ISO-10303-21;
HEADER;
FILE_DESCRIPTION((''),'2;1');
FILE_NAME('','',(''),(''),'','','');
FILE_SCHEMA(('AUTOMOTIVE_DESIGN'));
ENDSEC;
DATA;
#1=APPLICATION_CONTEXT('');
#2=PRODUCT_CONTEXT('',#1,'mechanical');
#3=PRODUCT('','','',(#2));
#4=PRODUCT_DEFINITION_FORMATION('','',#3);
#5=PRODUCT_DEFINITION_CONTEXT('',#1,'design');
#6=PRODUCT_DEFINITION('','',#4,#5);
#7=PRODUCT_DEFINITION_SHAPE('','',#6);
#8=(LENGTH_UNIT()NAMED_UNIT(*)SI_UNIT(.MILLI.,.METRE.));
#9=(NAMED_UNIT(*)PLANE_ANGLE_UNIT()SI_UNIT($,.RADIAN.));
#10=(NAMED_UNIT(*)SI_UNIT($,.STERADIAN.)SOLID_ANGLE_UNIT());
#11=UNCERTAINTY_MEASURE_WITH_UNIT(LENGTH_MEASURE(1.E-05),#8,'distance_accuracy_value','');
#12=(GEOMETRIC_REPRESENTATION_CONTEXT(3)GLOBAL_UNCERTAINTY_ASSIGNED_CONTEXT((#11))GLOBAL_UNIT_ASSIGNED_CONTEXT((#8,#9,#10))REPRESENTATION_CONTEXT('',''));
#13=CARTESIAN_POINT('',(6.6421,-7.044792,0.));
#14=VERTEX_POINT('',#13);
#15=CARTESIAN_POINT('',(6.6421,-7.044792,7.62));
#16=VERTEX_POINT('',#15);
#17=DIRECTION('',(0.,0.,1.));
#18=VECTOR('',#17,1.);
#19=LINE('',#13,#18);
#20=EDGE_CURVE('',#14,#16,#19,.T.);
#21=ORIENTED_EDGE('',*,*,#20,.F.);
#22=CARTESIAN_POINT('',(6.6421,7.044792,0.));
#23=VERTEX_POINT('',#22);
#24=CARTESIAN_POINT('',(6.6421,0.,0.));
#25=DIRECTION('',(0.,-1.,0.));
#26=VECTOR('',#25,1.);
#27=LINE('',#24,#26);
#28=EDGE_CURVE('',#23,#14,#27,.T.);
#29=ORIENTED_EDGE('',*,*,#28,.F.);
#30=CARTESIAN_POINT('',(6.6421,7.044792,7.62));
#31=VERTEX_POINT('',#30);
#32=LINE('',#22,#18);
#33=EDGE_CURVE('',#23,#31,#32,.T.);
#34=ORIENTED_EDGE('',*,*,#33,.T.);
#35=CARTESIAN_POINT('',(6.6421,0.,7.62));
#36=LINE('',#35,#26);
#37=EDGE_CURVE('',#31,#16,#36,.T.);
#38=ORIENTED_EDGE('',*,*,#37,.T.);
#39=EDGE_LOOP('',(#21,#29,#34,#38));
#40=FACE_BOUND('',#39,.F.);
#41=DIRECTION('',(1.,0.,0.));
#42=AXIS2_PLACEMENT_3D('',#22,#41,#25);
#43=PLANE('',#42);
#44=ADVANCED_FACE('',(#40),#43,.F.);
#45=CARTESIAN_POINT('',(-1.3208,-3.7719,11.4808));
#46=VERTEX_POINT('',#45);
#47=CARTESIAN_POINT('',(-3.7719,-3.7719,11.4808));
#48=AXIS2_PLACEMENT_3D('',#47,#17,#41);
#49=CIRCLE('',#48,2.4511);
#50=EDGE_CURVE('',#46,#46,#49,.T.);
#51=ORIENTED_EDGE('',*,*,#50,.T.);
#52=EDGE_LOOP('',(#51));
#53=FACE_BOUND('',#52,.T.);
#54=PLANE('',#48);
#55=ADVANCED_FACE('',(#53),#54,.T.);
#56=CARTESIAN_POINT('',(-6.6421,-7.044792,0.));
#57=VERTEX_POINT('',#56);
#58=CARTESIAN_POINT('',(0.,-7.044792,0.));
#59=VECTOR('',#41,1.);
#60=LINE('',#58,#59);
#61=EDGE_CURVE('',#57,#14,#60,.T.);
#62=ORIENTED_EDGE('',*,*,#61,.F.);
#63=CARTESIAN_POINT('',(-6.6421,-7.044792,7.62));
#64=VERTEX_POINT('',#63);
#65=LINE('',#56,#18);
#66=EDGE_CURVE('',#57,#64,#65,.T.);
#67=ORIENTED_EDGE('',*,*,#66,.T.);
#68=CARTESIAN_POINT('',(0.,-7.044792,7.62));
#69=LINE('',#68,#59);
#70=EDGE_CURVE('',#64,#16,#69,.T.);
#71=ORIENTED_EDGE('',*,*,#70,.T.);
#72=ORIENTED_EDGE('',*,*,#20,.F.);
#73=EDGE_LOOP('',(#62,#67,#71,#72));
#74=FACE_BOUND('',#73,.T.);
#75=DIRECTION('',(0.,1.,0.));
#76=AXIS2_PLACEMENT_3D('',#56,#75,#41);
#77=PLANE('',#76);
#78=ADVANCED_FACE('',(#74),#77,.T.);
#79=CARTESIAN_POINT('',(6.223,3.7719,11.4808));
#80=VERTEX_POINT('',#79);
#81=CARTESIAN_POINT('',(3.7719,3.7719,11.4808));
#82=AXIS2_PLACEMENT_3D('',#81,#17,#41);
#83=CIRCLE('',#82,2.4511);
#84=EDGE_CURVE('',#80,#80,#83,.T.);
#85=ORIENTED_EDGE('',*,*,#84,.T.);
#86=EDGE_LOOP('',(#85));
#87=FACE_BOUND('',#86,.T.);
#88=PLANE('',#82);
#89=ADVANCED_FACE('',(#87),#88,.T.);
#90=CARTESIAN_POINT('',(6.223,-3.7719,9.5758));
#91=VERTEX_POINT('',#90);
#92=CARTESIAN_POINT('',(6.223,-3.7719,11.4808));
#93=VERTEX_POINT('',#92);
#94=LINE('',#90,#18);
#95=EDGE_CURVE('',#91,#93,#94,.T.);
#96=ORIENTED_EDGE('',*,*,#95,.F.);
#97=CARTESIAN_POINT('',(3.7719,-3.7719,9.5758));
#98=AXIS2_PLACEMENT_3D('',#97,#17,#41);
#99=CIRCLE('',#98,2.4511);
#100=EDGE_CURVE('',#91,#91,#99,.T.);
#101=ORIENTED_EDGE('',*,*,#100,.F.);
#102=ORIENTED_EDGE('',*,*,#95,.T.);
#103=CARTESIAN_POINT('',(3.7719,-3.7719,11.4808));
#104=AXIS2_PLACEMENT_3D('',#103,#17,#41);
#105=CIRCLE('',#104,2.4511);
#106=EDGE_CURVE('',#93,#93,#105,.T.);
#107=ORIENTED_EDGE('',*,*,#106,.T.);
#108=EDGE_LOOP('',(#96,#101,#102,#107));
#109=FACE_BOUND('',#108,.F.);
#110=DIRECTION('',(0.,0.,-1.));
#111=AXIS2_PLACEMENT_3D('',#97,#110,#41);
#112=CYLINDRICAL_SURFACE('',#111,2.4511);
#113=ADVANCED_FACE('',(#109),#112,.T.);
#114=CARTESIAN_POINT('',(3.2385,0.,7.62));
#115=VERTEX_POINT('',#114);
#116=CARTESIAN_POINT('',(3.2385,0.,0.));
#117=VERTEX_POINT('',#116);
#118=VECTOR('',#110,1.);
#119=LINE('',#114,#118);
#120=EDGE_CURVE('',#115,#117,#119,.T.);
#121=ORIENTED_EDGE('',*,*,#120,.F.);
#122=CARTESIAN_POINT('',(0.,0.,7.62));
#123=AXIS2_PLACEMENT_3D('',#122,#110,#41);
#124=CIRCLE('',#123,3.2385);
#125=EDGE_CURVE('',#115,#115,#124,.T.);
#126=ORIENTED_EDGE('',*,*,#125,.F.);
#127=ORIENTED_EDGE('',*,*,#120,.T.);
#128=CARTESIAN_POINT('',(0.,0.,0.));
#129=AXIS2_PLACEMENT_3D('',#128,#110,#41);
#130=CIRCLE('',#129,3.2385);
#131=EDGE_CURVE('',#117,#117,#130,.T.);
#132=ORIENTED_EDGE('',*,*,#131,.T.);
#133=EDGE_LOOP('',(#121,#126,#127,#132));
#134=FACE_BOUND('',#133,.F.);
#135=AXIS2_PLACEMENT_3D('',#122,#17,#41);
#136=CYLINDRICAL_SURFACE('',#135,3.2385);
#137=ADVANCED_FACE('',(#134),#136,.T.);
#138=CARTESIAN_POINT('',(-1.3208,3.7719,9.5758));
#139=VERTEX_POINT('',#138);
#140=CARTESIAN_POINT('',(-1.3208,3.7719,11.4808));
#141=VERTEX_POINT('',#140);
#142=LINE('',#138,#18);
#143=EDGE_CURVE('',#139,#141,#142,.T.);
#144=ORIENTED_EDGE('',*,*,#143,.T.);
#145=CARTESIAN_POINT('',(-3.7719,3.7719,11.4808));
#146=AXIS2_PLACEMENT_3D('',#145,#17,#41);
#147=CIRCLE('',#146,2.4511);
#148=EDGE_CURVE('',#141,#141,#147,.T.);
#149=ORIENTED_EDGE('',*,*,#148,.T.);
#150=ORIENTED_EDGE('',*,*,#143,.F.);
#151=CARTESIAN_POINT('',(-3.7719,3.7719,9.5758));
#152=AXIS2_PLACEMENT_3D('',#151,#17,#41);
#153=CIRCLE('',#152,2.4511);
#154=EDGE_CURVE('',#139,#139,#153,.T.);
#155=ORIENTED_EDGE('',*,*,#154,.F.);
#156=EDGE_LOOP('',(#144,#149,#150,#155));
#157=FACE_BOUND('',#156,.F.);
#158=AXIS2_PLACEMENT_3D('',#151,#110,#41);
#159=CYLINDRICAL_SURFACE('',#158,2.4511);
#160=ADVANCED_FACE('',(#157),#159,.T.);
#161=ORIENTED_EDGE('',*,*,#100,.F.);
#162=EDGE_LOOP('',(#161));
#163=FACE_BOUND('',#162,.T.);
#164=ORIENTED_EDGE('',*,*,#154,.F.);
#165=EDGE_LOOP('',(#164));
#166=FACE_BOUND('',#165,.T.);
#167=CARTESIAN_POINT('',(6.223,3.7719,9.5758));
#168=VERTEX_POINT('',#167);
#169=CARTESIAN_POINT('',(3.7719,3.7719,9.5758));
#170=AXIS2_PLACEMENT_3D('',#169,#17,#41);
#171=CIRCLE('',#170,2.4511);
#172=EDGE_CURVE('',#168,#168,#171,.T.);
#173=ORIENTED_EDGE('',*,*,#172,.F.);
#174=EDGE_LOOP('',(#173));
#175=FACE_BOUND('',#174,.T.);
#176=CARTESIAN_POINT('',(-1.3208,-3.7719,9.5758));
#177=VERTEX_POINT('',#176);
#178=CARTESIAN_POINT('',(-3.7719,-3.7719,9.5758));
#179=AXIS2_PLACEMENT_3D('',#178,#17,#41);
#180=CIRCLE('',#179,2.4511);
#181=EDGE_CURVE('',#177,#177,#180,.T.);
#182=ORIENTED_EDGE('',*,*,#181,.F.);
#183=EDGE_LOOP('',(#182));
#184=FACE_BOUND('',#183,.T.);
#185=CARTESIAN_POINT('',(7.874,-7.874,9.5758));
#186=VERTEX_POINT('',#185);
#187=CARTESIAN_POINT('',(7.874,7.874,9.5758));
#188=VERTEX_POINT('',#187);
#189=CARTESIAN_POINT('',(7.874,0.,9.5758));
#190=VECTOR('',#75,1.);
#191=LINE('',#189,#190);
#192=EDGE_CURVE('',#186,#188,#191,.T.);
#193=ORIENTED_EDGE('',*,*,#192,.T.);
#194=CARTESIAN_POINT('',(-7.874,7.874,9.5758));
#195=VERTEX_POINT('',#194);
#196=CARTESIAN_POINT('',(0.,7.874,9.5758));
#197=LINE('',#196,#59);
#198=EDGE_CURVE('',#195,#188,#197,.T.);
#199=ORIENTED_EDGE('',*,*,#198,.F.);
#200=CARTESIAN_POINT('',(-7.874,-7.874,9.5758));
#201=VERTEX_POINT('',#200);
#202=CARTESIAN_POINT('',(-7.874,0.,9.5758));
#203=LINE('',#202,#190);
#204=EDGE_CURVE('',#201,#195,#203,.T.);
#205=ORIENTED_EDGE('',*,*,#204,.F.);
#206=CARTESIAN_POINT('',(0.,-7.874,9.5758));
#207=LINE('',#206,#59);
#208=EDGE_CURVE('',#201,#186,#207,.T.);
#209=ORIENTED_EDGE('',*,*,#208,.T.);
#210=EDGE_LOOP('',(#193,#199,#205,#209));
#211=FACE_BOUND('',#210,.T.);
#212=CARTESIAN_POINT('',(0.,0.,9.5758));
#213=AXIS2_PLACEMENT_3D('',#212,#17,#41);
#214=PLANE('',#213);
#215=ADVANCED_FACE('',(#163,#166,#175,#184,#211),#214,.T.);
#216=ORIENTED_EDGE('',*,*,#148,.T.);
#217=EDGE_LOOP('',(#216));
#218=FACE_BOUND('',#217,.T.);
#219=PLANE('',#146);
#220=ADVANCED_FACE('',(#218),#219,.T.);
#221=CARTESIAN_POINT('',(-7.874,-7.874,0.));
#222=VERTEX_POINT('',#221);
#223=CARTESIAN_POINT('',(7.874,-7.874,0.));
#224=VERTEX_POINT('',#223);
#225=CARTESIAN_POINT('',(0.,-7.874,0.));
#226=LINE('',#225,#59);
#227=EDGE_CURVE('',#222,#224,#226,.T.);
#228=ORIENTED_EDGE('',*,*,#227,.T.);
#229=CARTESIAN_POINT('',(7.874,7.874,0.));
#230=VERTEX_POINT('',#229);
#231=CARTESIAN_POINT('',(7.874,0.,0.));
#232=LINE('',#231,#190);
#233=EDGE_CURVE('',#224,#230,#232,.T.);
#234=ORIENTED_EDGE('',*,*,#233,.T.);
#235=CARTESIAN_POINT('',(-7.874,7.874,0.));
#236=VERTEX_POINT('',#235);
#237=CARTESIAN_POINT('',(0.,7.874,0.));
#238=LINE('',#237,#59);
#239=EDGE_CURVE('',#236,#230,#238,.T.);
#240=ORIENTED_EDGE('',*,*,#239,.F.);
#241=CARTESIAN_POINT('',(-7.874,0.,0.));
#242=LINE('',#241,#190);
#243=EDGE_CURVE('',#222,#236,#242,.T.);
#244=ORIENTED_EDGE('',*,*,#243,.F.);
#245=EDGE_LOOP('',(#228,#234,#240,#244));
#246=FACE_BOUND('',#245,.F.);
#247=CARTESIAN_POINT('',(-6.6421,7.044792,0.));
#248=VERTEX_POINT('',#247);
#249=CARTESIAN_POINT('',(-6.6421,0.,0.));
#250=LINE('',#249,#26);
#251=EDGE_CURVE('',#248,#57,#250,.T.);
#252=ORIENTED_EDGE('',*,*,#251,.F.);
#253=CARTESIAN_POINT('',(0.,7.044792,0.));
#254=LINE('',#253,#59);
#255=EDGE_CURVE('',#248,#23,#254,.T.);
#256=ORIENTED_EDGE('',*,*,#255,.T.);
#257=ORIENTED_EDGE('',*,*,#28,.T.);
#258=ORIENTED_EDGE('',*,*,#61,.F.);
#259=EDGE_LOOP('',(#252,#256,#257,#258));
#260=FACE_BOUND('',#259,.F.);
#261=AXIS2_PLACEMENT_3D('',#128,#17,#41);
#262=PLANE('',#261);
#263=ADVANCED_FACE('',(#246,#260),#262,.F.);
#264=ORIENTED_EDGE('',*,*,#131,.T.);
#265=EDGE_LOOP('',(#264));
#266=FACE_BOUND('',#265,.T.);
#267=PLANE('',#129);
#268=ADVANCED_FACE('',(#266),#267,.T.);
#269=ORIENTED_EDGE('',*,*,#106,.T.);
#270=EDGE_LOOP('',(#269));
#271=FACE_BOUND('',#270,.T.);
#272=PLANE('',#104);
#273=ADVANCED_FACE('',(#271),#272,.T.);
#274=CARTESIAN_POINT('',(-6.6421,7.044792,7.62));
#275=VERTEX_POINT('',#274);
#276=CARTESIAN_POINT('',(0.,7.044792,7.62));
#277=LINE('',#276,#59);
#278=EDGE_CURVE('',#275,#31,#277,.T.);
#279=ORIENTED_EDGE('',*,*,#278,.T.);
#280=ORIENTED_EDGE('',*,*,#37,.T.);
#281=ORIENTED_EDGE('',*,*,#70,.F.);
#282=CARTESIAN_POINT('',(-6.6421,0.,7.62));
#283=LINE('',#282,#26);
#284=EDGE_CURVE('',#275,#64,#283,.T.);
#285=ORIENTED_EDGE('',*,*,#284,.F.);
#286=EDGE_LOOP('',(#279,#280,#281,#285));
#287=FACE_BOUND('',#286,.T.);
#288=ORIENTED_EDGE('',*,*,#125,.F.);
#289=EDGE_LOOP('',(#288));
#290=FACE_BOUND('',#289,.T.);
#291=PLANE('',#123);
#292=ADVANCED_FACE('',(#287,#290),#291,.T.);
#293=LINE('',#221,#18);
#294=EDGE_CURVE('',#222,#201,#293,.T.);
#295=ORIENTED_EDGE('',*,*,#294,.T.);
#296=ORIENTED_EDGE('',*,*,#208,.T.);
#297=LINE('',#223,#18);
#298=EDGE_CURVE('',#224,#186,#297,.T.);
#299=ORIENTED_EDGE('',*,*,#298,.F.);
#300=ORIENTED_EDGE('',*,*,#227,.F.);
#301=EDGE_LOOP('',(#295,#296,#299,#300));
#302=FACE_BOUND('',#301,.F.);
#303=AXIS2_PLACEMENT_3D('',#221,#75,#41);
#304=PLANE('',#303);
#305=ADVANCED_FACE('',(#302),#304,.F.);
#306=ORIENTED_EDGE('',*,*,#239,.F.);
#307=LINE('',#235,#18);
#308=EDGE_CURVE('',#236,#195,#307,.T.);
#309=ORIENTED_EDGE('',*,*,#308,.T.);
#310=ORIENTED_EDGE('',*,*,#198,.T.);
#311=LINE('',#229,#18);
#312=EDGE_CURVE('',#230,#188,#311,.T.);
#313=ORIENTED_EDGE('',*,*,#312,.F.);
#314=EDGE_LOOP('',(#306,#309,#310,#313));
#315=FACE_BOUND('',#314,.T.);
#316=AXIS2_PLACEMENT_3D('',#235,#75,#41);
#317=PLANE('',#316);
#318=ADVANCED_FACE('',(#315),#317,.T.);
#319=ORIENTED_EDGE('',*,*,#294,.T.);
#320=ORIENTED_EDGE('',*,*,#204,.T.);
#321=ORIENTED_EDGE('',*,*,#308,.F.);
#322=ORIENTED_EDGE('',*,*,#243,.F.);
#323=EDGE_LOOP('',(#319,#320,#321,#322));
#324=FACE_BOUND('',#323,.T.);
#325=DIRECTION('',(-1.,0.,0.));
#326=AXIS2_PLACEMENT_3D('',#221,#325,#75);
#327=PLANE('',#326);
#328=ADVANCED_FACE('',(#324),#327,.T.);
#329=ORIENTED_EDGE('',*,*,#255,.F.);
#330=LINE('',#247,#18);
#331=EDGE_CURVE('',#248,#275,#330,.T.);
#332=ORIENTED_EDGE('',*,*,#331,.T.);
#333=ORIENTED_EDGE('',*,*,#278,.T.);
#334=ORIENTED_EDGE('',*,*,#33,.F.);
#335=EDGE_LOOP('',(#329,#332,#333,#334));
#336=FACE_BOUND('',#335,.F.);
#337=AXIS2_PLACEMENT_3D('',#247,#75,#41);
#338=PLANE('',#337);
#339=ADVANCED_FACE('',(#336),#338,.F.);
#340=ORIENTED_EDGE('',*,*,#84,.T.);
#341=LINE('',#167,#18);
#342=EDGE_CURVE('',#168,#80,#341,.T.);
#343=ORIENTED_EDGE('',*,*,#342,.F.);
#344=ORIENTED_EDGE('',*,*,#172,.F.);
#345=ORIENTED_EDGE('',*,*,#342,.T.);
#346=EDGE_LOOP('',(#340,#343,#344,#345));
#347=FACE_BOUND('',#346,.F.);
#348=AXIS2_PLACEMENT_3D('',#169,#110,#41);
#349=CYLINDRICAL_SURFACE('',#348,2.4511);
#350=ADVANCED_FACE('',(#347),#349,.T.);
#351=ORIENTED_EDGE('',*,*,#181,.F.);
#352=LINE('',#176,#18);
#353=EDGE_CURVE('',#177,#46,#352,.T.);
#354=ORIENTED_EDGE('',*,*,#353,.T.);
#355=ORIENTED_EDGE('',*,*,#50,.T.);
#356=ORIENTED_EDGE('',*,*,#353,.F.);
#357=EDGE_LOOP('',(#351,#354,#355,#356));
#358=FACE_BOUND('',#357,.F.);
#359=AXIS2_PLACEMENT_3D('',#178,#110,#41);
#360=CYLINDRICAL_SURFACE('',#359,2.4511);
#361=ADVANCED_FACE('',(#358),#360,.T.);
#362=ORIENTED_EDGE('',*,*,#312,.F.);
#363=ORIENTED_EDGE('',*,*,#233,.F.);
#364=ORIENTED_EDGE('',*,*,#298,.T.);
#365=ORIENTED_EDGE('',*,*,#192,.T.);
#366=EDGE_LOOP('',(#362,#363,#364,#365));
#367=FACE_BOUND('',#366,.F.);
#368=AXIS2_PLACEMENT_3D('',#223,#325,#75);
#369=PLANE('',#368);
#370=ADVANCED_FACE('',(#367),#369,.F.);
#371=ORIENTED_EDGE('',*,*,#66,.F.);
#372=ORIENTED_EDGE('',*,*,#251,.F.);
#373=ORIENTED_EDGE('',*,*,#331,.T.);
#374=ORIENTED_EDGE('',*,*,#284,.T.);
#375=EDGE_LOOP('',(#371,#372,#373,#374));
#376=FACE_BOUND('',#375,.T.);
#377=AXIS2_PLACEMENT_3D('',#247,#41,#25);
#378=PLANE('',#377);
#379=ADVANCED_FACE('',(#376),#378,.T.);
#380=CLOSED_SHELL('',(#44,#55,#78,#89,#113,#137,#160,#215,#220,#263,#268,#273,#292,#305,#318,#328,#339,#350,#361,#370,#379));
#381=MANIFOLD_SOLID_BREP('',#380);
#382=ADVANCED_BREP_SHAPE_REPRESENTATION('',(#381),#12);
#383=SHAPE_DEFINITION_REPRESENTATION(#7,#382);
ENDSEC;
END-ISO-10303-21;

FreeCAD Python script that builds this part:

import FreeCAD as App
import Part
import Sketcher
from FreeCAD import Vector
Q = App.Units.Quantity

doc = App.newDocument("Part")
body = doc.addObject("PartDesign::Body", "Body")

sketch1 = body.newObject("Sketcher::SketchObject", "Sketch")
sketch1.AttachmentSupport = (doc.getObject("XY_Plane"), [""])
sketch1.MapMode = "FlatFace"
sketch1.addGeometry([
    Part.LineSegment(Vector(-8, 8, 0), Vector(-8, -8, 0)),
    Part.LineSegment(Vector(-8, -8, 0), Vector(8, -8, 0)),
    Part.LineSegment(Vector(8, -8, 0), Vector(8, 8, 0)),
    Part.LineSegment(Vector(8, 8, 0), Vector(-8, 8, 0)),
], False)
sketch1.addConstraint([
    Sketcher.Constraint("Coincident", 0, 2, 1, 1),
    Sketcher.Constraint("Coincident", 1, 2, 2, 1),
    Sketcher.Constraint("Coincident", 2, 2, 3, 1),
    Sketcher.Constraint("Coincident", 3, 2, 0, 1),
    Sketcher.Constraint("Vertical", 0),
    Sketcher.Constraint("Horizontal", 1),
    Sketcher.Constraint("Vertical", 2),
    Sketcher.Constraint("Horizontal", 3),
    Sketcher.Constraint("Symmetric", 0, 2, 2, 2, -1, 1),
    Sketcher.Constraint("Equal", 3, 0),
    Sketcher.Constraint("DistanceX", 1, 1, 1, 2, Q("0.62 in")),
])
pad1 = body.newObject("PartDesign::Pad", "Pad")
pad1.Profile = sketch1
pad1.Length = Q("0.377 in")

sketch2 = body.newObject("Sketcher::SketchObject", "Sketch001")
sketch2.AttachmentSupport = (doc.getObject("XY_Plane"), [""])
sketch2.MapMode = "FlatFace"
sketch2.AttachmentOffset = App.Placement(Vector(0, 0, 0.377 * 25.4), App.Rotation())
sketch2.addGeometry(Part.Circle(Vector(-3.8, 3.8, 0), Vector(0, 0, 1), 2.5), False)
sketch2.addConstraint([
    Sketcher.Constraint("Diameter", 0, Q("0.193 in")),
    Sketcher.Constraint("DistanceX", 0, 3, -1, 1, Q("0.1485 in")),
    Sketcher.Constraint("DistanceY", -1, 1, 0, 3, Q("0.1485 in")),
])
pad2 = body.newObject("PartDesign::Pad", "Pad001")
pad2.Profile = sketch2
pad2.Length = Q("0.075 in")

sketch3 = body.newObject("Sketcher::SketchObject", "Sketch002")
sketch3.AttachmentSupport = (doc.getObject("XY_Plane"), [""])
sketch3.MapMode = "FlatFace"
sketch3.AttachmentOffset = App.Placement(Vector(0, 0, 0.377 * 25.4), App.Rotation())
sketch3.addGeometry(Part.Circle(Vector(-3.8, -3.8, 0), Vector(0, 0, 1), 2.5), False)
sketch3.addConstraint([
    Sketcher.Constraint("Diameter", 0, Q("0.193 in")),
    Sketcher.Constraint("DistanceX", 0, 3, -1, 1, Q("0.1485 in")),
    Sketcher.Constraint("DistanceY", 0, 3, -1, 1, Q("0.1485 in")),
])
pad3 = body.newObject("PartDesign::Pad", "Pad002")
pad3.Profile = sketch3
pad3.Length = Q("0.075 in")

sketch4 = body.newObject("Sketcher::SketchObject", "Sketch003")
sketch4.AttachmentSupport = (doc.getObject("XY_Plane"), [""])
sketch4.MapMode = "FlatFace"
sketch4.AttachmentOffset = App.Placement(Vector(0, 0, 0.377 * 25.4), App.Rotation())
sketch4.addGeometry([
    Part.Circle(Vector(3.8, 3.8, 0), Vector(0, 0, 1), 2.5),
    Part.Circle(Vector(3.8, -3.8, 0), Vector(0, 0, 1), 2.5),
], False)
sketch4.addConstraint([
    Sketcher.Constraint("Equal", 0, 1),
    Sketcher.Constraint("Symmetric", 0, 3, 1, 3, -1),
    Sketcher.Constraint("Diameter", 0, Q("0.193 in")),
    Sketcher.Constraint("DistanceY", 1, 3, 0, 3, Q("0.297 in")),
    Sketcher.Constraint("DistanceX", -1, 1, 0, 3, Q("0.1485 in")),
])
pad4 = body.newObject("PartDesign::Pad", "Pad003")
pad4.Profile = sketch4
pad4.Length = Q("0.075 in")

sketch5 = body.newObject("Sketcher::SketchObject", "Sketch004")
sketch5.AttachmentSupport = (doc.getObject("XY_Plane"), [""])
sketch5.MapMode = "FlatFace"
sketch5.addGeometry([
    Part.LineSegment(Vector(-7, -7, 0), Vector(-7, 7, 0)),
    Part.LineSegment(Vector(-7, 7, 0), Vector(7, 7, 0)),
    Part.LineSegment(Vector(7, 7, 0), Vector(7, -7, 0)),
    Part.LineSegment(Vector(7, -7, 0), Vector(-7, -7, 0)),
], False)
sketch5.addConstraint([
    Sketcher.Constraint("Coincident", 0, 2, 1, 1),
    Sketcher.Constraint("Coincident", 1, 2, 2, 1),
    Sketcher.Constraint("Coincident", 2, 2, 3, 1),
    Sketcher.Constraint("Coincident", 3, 2, 0, 1),
    Sketcher.Constraint("Vertical", 0),
    Sketcher.Constraint("Horizontal", 1),
    Sketcher.Constraint("Vertical", 2),
    Sketcher.Constraint("Horizontal", 3),
    Sketcher.Constraint("Symmetric", 0, 2, 2, 2, -1, 1),
    Sketcher.Constraint("DistanceX", 1, 1, 1, 2, Q("0.523 in")),
    Sketcher.Constraint("DistanceY", 0, 1, 0, 2, Q("14.089584 mm")),
])
pocket1 = body.newObject("PartDesign::Pocket", "Pocket")
pocket1.Profile = sketch5
pocket1.Length = Q("0.3 in")
pocket1.Reversed = True

sketch6 = body.newObject("Sketcher::SketchObject", "Sketch005")
sketch6.AttachmentSupport = (doc.getObject("XY_Plane"), [""])
sketch6.MapMode = "FlatFace"
sketch6.AttachmentOffset = App.Placement(Vector(0, 0, 0.3 * 25.4), App.Rotation())
sketch6.addGeometry(Part.Circle(Vector(0, 0, 0), Vector(0, 0, 1), 3.2), False)
sketch6.addConstraint([
    Sketcher.Constraint("Coincident", 0, 3, -1, 1),
    Sketcher.Constraint("Diameter", 0, Q("0.255 in")),
])
pad5 = body.newObject("PartDesign::Pad", "Pad004")
pad5.Profile = sketch6
pad5.Length = Q("0.3 in")
pad5.Reversed = True

doc.recompute()
